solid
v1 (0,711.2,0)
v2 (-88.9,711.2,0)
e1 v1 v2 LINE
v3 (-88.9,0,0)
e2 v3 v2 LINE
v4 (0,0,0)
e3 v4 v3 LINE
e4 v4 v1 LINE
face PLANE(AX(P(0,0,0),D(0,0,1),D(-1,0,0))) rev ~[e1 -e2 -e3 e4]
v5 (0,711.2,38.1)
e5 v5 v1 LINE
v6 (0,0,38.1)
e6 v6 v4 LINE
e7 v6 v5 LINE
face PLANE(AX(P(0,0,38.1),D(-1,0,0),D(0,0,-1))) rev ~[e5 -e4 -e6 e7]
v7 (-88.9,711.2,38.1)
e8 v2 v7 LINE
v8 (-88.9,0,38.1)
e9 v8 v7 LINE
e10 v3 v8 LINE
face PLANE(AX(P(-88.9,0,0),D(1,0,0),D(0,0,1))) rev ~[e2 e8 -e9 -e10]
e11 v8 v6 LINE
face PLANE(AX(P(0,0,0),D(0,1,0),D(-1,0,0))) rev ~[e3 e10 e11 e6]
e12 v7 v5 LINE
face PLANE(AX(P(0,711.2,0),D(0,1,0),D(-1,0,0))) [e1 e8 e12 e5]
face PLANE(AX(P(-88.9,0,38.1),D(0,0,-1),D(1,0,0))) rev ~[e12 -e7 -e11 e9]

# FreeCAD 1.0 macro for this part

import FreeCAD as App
import Part
import Sketcher
Q = App.Units.Quantity


def add_polygon(sketch, points):
    """Adds a closed chain of lines whose ends are joined by coincident constraints."""
    first, n = sketch.GeometryCount, len(points)
    for a, b in zip(points, points[1:] + points[:1]):
        sketch.addGeometry(Part.LineSegment(App.Vector(*a, 0), App.Vector(*b, 0)), False)
    for i in range(n):
        sketch.addConstraint(Sketcher.Constraint("Coincident", first + i, 2, first + (i + 1) % n, 1))

doc = App.newDocument("Part")
body = doc.addObject("PartDesign::Body", "Body")

sketch1 = body.newObject("Sketcher::SketchObject", "Sketch")
sketch1.AttachmentSupport = (doc.getObject("XZ_Plane"), [""])
sketch1.MapMode = "FlatFace"
add_polygon(sketch1, [(0, 38), (0, 0), (-89, 0), (-89, 38)])
sketch1.addConstraint([
    Sketcher.Constraint("Vertical", 0),
    Sketcher.Constraint("Horizontal", 1),
    Sketcher.Constraint("Vertical", 2),
    Sketcher.Constraint("Horizontal", 3),
    Sketcher.Constraint("Coincident", 0, 2, -1, 1),
    Sketcher.Constraint("DistanceX", 1, 2, 1, 1, Q("3.5 in")),
    Sketcher.Constraint("DistanceY", 0, 2, 0, 1, Q("1.5 in")),
])
pad1 = body.newObject("PartDesign::Pad", "Pad")
pad1.Profile = sketch1
pad1.Length = Q("28 in")
pad1.Reversed = True

doc.recompute()
